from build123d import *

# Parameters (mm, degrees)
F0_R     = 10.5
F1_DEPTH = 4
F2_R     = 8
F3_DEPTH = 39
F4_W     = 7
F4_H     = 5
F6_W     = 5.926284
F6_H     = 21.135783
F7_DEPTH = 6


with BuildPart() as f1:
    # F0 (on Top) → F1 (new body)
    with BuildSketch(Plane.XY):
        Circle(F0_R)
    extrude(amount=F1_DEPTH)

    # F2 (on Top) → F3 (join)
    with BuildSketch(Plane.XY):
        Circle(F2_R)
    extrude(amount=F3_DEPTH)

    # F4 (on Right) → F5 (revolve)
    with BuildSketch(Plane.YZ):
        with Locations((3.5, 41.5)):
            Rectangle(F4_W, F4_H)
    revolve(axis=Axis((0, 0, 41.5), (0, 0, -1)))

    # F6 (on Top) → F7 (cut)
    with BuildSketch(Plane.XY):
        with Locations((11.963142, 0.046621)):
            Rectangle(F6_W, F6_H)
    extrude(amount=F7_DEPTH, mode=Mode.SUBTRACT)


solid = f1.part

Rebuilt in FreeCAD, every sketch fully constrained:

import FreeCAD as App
import Part
import Sketcher
from FreeCAD import Vector
Q = App.Units.Quantity

doc = App.newDocument("Part")
body = doc.addObject("PartDesign::Body", "Body")

sketch1 = body.newObject("Sketcher::SketchObject", "Sketch")
sketch1.AttachmentSupport = (doc.getObject("XY_Plane"), [""])
sketch1.MapMode = "FlatFace"
sketch1.addGeometry(Part.Circle(Vector(0, 0, 0), Vector(0, 0, 1), 10), False)
sketch1.addConstraint([
    Sketcher.Constraint("Coincident", 0, 3, -1, 1),
    Sketcher.Constraint("Diameter", 0, Q("21 mm")),
])
pad1 = body.newObject("PartDesign::Pad", "Pad")
pad1.Profile = sketch1
pad1.Length = 4

sketch2 = body.newObject("Sketcher::SketchObject", "Sketch001")
sketch2.AttachmentSupport = (doc.getObject("XY_Plane"), [""])
sketch2.MapMode = "FlatFace"
sketch2.addGeometry(Part.Circle(Vector(0, 0, 0), Vector(0, 0, 1), 8), False)
sketch2.addConstraint([
    Sketcher.Constraint("Coincident", 0, 3, -1, 1),
    Sketcher.Constraint("Diameter", 0, Q("16 mm")),
])
pad2 = body.newObject("PartDesign::Pad", "Pad001")
pad2.Profile = sketch2
pad2.Length = 39

sketch3 = body.newObject("Sketcher::SketchObject", "Sketch002")
sketch3.AttachmentSupport = (doc.getObject("YZ_Plane"), [""])
sketch3.MapMode = "FlatFace"
sketch3.addGeometry([
    Part.LineSegment(Vector(0, 44, 0), Vector(0, 39, 0)),
    Part.LineSegment(Vector(0, 39, 0), Vector(7, 39, 0)),
    Part.LineSegment(Vector(7, 39, 0), Vector(7, 44, 0)),
    Part.LineSegment(Vector(7, 44, 0), Vector(0, 44, 0)),
], False)
sketch3.addConstraint([
    Sketcher.Constraint("Coincident", 0, 2, 1, 1),
    Sketcher.Constraint("Coincident", 1, 2, 2, 1),
    Sketcher.Constraint("Coincident", 2, 2, 3, 1),
    Sketcher.Constraint("Coincident", 3, 2, 0, 1),
    Sketcher.Constraint("Vertical", 0),
    Sketcher.Constraint("Horizontal", 1),
    Sketcher.Constraint("Vertical", 2),
    Sketcher.Constraint("Horizontal", 3),
    Sketcher.Constraint("PointOnObject", 0, 2, -2),
    Sketcher.Constraint("DistanceX", 1, 1, 1, 2, Q("7 mm")),
    Sketcher.Constraint("DistanceY", 0, 2, 0, 1, Q("5 mm")),
    Sketcher.Constraint("DistanceY", -1, 1, 0, 2, Q("39 mm")),
])
revolution = body.newObject("PartDesign::Revolution", "Revolution")
revolution.Profile = sketch3
revolution.ReferenceAxis = (sketch3, ["V_Axis"])
revolution.Angle = 360

sketch4 = body.newObject("Sketcher::SketchObject", "Sketch003")
sketch4.AttachmentSupport = (doc.getObject("XY_Plane"), [""])
sketch4.MapMode = "FlatFace"
sketch4.addGeometry([
    Part.LineSegment(Vector(9, 11, 0), Vector(9, -11, 0)),
    Part.LineSegment(Vector(9, -11, 0), Vector(15, -11, 0)),
    Part.LineSegment(Vector(15, -11, 0), Vector(15, 11, 0)),
    Part.LineSegment(Vector(15, 11, 0), Vector(9, 11, 0)),
], False)
sketch4.addConstraint([
    Sketcher.Constraint("Coincident", 0, 2, 1, 1),
    Sketcher.Constraint("Coincident", 1, 2, 2, 1),
    Sketcher.Constraint("Coincident", 2, 2, 3, 1),
    Sketcher.Constraint("Coincident", 3, 2, 0, 1),
    Sketcher.Constraint("Vertical", 0),
    Sketcher.Constraint("Horizontal", 1),
    Sketcher.Constraint("Vertical", 2),
    Sketcher.Constraint("Horizontal", 3),
    Sketcher.Constraint("DistanceX", -1, 1, 0, 2, Q("9 mm")),
    Sketcher.Constraint("DistanceX", 1, 1, 1, 2, Q("5.926284 mm")),
    Sketcher.Constraint("DistanceY", 0, 2, 0, 1, Q("21.135783 mm")),
    Sketcher.Constraint("DistanceY", 0, 2, -1, 1, Q("10.52127 mm")),
])
pocket1 = body.newObject("PartDesign::Pocket", "Pocket")
pocket1.Profile = sketch4
pocket1.Length = 6
pocket1.Reversed = True

doc.recompute()
